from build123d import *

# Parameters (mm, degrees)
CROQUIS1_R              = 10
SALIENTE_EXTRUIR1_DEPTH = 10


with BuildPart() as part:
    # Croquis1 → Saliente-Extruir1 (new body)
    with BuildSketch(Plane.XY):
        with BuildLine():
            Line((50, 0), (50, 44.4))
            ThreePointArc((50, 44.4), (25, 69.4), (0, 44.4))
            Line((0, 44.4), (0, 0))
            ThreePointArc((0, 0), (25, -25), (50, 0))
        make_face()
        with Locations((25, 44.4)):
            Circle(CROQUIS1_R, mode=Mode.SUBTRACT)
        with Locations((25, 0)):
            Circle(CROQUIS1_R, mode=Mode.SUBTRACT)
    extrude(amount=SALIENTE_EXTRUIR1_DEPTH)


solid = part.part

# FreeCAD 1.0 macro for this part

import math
import FreeCAD as App
import Part
import Sketcher

doc = App.newDocument("Part")
body = doc.addObject("PartDesign::Body", "Body")

sketch1 = body.newObject("Sketcher::SketchObject", "Sketch")
sketch1.AttachmentSupport = (doc.getObject("XY_Plane"), [""])
sketch1.MapMode = "FlatFace"
sketch1.addGeometry([
    Part.LineSegment(App.Vector(50, 0, 0), App.Vector(50, 44, 0)),
    Part.ArcOfCircle(Part.Circle(App.Vector(25, 44, 0), App.Vector(0, 0, 1), 25), math.radians(0), math.radians(180)),
    Part.LineSegment(App.Vector(0, 44, 0), App.Vector(0, 0, 0)),
    Part.ArcOfCircle(Part.Circle(App.Vector(25, 0, 0), App.Vector(0, 0, 1), 25), math.radians(180), math.radians(360)),
    Part.Circle(App.Vector(25, 0, 0), App.Vector(0, 0, 1), 10),
    Part.Circle(App.Vector(25, 44, 0), App.Vector(0, 0, 1), 10),
], False)
sketch1.addConstraint([
    Sketcher.Constraint("Tangent", 0, 2, 1, 1),
    Sketcher.Constraint("Tangent", 1, 2, 2, 1),
    Sketcher.Constraint("Tangent", 2, 2, 3, 1),
    Sketcher.Constraint("Tangent", 3, 2, 0, 1),
    Sketcher.Constraint("Vertical", 0),
    Sketcher.Constraint("Vertical", 2),
    Sketcher.Constraint("Coincident", 2, 2, -1, 1),
    Sketcher.Constraint("Coincident", 4, 3, 3, 3),
    Sketcher.Constraint("Coincident", 5, 3, 1, 3),
    Sketcher.Constraint("Equal", 4, 5),
    Sketcher.Constraint("Diameter", 4, 20.0),
    Sketcher.Constraint("Radius", 1, 25.0),
    Sketcher.Constraint("DistanceY", 0, 1, 0, 2, 44.4),
])
pad1 = body.newObject("PartDesign::Pad", "Pad")
pad1.Profile = sketch1
pad1.Length = 10

doc.recompute()
